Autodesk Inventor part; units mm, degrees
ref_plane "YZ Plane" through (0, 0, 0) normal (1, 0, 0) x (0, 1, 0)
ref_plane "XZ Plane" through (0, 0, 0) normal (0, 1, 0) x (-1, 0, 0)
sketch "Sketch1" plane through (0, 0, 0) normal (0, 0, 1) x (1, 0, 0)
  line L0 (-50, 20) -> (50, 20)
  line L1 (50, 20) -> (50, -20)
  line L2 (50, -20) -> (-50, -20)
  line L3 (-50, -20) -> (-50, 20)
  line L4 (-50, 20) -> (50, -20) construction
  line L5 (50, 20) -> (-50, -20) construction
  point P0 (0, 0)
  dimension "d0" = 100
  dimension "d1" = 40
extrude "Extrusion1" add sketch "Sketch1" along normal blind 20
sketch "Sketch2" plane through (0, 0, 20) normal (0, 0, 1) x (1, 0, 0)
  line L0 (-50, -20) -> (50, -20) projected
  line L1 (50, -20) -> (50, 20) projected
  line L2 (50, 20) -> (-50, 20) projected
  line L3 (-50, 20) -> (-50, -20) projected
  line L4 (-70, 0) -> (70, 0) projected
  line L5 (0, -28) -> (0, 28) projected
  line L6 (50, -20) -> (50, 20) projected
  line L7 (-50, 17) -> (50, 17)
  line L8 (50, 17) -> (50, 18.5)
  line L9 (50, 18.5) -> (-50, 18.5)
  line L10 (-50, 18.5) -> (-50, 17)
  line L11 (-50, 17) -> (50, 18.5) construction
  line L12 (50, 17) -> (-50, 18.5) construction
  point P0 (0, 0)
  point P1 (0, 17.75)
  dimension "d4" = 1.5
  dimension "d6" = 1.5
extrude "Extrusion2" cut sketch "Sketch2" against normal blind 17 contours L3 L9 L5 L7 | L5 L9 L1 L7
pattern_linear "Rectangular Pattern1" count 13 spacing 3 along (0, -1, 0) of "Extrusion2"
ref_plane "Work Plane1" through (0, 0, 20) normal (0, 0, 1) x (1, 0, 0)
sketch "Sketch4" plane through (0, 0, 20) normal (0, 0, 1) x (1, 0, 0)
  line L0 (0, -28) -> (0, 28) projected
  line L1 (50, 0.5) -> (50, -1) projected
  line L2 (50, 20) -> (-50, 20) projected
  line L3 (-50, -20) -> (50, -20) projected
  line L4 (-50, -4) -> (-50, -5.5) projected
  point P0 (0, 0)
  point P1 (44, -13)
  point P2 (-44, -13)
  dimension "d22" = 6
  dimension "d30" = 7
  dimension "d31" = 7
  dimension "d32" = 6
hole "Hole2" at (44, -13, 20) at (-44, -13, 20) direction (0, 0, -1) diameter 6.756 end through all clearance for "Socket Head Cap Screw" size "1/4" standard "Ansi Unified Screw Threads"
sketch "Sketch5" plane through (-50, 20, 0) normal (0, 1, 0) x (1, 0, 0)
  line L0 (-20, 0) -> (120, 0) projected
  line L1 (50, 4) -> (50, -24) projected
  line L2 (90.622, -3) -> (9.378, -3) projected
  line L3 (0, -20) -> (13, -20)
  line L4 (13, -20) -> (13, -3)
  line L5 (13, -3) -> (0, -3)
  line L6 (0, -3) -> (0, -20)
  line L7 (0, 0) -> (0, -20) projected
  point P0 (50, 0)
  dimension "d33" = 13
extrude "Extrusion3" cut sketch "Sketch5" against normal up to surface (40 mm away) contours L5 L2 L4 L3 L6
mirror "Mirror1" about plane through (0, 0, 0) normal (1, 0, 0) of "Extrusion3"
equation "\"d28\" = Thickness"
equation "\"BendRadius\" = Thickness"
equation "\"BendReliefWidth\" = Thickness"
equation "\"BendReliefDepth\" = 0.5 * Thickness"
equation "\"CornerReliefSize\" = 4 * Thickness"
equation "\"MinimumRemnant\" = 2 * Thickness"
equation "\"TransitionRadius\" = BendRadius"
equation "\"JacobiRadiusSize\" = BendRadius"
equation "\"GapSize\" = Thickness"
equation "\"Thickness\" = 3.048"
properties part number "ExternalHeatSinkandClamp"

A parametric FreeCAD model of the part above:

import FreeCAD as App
import Part
import Sketcher

V = App.Vector
Q = App.Units.Quantity


def add_polygon(sketch, points):
    """Adds a closed chain of lines whose ends are joined by coincident constraints."""
    first, n = sketch.GeometryCount, len(points)
    for a, b in zip(points, points[1:] + points[:1]):
        sketch.addGeometry(Part.LineSegment(App.Vector(*a, 0), App.Vector(*b, 0)), False)
    for i in range(n):
        sketch.addConstraint(Sketcher.Constraint("Coincident", first + i, 2, first + (i + 1) % n, 1))

doc = App.newDocument("Part")
body = doc.addObject("PartDesign::Body", "Body")

# Sketch on XY plane
sketch1 = body.newObject("Sketcher::SketchObject", "Sketch")
sketch1.AttachmentSupport = (doc.getObject("XY_Plane"), [""])
sketch1.MapMode = "FlatFace"
add_polygon(sketch1, [(50, 20), (-50, 20), (-50, -20), (50, -20)])  # lines 0-3
sketch1.addConstraint(Sketcher.Constraint("Horizontal", 0))
sketch1.addConstraint(Sketcher.Constraint("Vertical", 1))
sketch1.addConstraint(Sketcher.Constraint("Horizontal", 2))
sketch1.addConstraint(Sketcher.Constraint("Vertical", 3))
sketch1.addConstraint(Sketcher.Constraint("Symmetric", 0, 2, 2, 2, -1, 1))
sketch1.addConstraint(Sketcher.Constraint("DistanceX", 0, 2, 0, 1, Q("100 mm")))
sketch1.addConstraint(Sketcher.Constraint("DistanceY", 1, 2, 1, 1, Q("40 mm")))
pad1 = body.newObject("PartDesign::Pad", "Pad")
pad1.Profile = sketch1
pad1.Length = 20

# Sketch on XY plane
sketch2 = body.newObject("Sketcher::SketchObject", "Sketch001")
sketch2.AttachmentSupport = (doc.getObject("XY_Plane"), [""])
sketch2.MapMode = "FlatFace"
sketch2.AttachmentOffset = App.Placement(V(0, 0, 20), App.Rotation())
add_polygon(sketch2, [(-50, 18.5), (-50, 17), (50, 17), (50, 18.5)])  # lines 0-3
sketch2.addConstraint(Sketcher.Constraint("Vertical", 0))
sketch2.addConstraint(Sketcher.Constraint("Horizontal", 1))
sketch2.addConstraint(Sketcher.Constraint("Vertical", 2))
sketch2.addConstraint(Sketcher.Constraint("Horizontal", 3))
sketch2.addConstraint(Sketcher.Constraint("DistanceY", 0, 2, 0, 1, Q("1.5 mm")))
sketch2.addConstraint(Sketcher.Constraint("DistanceX", 1, 1, 1, 2, Q("100 mm")))
sketch2.addConstraint(Sketcher.Constraint("DistanceX", 0, 2, -1, 1, Q("50 mm")))
sketch2.addConstraint(Sketcher.Constraint("DistanceY", -1, 1, 0, 2, Q("17 mm")))
pocket1 = body.newObject("PartDesign::Pocket", "Pocket")
pocket1.Profile = sketch2
pocket1.Length = 17
doc.recompute()

linearpattern = body.newObject("PartDesign::LinearPattern", "LinearPattern")
linearpattern.Originals = [pocket1]
linearpattern.Direction = (doc.getObject("Y_Axis"), [""])
linearpattern.Mode = "offset"
linearpattern.Offset = 3
linearpattern.Occurrences = 13
linearpattern.Reversed = True
body.Tip = linearpattern

# Sketch on XY plane
sketch3 = body.newObject("Sketcher::SketchObject", "Sketch002")
sketch3.AttachmentSupport = (doc.getObject("XY_Plane"), [""])
sketch3.MapMode = "FlatFace"
sketch3.AttachmentOffset = App.Placement(V(0, 0, 20), App.Rotation())
sketch3.addGeometry(Part.Circle(V(44, -13, 0), V(0, 0, 1), 3.4), False)
sketch3.addGeometry(Part.Circle(V(-44, -13, 0), V(0, 0, 1), 3.4), False)
sketch3.addConstraint(Sketcher.Constraint("Equal", 0, 1))
sketch3.addConstraint(Sketcher.Constraint("Symmetric", 0, 3, 1, 3, -2))
sketch3.addConstraint(Sketcher.Constraint("Diameter", 0, Q("6.756 mm")))
sketch3.addConstraint(Sketcher.Constraint("DistanceX", -1, 1, 0, 3, Q("44 mm")))
sketch3.addConstraint(Sketcher.Constraint("DistanceY", 0, 3, -1, 1, Q("13 mm")))
doc.recompute()
hole = body.newObject("PartDesign::Hole", "Hole")
hole.Profile = sketch3
hole.ThreadType = "None"
hole.Diameter = 6.756
hole.DepthType = "ThroughAll"

# Sketch on XZ plane
sketch4 = body.newObject("Sketcher::SketchObject", "Sketch003")
sketch4.AttachmentSupport = (doc.getObject("XZ_Plane"), [""])
sketch4.MapMode = "FlatFace"
sketch4.AttachmentOffset = App.Placement(V(0, 0, -20), App.Rotation())
add_polygon(sketch4, [(-37, 3), (-50, 3), (-50, 20), (-37, 20)])  # lines 0-3
sketch4.addConstraint(Sketcher.Constraint("Horizontal", 0))
sketch4.addConstraint(Sketcher.Constraint("Vertical", 1))
sketch4.addConstraint(Sketcher.Constraint("Horizontal", 2))
sketch4.addConstraint(Sketcher.Constraint("Vertical", 3))
sketch4.addConstraint(Sketcher.Constraint("DistanceX", 0, 2, 0, 1, Q("13 mm")))
sketch4.addConstraint(Sketcher.Constraint("DistanceY", 1, 1, 1, 2, Q("17 mm")))
sketch4.addConstraint(Sketcher.Constraint("DistanceX", 0, 2, -1, 1, Q("50 mm")))
sketch4.addConstraint(Sketcher.Constraint("DistanceY", -1, 1, 0, 2, Q("3 mm")))
pocket2 = body.newObject("PartDesign::Pocket", "Pocket001")
pocket2.Profile = sketch4
pocket2.Length = 40
pocket2.Reversed = True
doc.recompute()

mirrored = body.newObject("PartDesign::Mirrored", "Mirrored")
mirrored.Originals = [pocket2]
mirrored.MirrorPlane = (doc.getObject("YZ_Plane"), [""])
body.Tip = mirrored

doc.recompute()
